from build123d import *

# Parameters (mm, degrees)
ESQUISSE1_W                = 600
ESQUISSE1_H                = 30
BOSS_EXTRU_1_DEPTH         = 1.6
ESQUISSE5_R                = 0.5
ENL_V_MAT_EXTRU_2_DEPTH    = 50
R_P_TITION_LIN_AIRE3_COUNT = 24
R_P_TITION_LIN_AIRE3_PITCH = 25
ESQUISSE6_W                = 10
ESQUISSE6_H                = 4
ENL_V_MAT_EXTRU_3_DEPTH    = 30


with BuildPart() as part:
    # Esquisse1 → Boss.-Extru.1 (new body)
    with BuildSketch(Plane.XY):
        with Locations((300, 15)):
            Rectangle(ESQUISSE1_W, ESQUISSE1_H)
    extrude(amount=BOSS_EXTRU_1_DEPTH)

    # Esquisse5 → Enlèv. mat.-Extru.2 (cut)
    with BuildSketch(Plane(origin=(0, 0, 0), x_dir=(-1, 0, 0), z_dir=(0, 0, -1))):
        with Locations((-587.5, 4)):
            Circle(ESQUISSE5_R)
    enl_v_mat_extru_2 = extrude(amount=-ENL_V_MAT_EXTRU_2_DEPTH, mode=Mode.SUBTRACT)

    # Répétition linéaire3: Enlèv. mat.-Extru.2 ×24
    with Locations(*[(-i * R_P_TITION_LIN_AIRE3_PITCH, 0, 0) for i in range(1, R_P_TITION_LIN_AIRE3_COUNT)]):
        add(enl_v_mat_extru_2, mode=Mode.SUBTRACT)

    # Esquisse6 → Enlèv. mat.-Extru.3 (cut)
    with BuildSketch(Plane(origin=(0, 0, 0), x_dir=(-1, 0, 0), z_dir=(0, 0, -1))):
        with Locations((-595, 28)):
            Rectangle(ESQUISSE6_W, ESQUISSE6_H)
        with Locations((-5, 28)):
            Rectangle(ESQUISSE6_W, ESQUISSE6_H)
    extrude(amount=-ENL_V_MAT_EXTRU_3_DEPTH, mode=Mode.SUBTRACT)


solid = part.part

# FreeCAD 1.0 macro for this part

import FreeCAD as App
import Part
import Sketcher

doc = App.newDocument("Part")
body = doc.addObject("PartDesign::Body", "Body")

# Sketch on XY plane
sketch1 = body.newObject("Sketcher::SketchObject", "Sketch")
sketch1.AttachmentSupport = (doc.getObject("XY_Plane"), [""])
sketch1.MapMode = "FlatFace"
sketch1.addGeometry([
    Part.LineSegment(App.Vector(0, 30, 0), App.Vector(0, 0, 0)),
    Part.LineSegment(App.Vector(0, 0, 0), App.Vector(600, 0, 0)),
    Part.LineSegment(App.Vector(600, 0, 0), App.Vector(600, 30, 0)),
    Part.LineSegment(App.Vector(600, 30, 0), App.Vector(0, 30, 0)),
], False)
sketch1.addConstraint([
    Sketcher.Constraint("Coincident", 0, 2, 1, 1),
    Sketcher.Constraint("Coincident", 1, 2, 2, 1),
    Sketcher.Constraint("Coincident", 2, 2, 3, 1),
    Sketcher.Constraint("Coincident", 3, 2, 0, 1),
    Sketcher.Constraint("Vertical", 0),
    Sketcher.Constraint("Horizontal", 1),
    Sketcher.Constraint("Vertical", 2),
    Sketcher.Constraint("Horizontal", 3),
    Sketcher.Constraint("Coincident", 0, 2, -1, 1),
    Sketcher.Constraint("DistanceX", 1, 1, 1, 2, 600.0),
    Sketcher.Constraint("DistanceY", 0, 2, 0, 1, 30.0),
])
pad1 = body.newObject("PartDesign::Pad", "Pad")
pad1.Profile = sketch1
pad1.Length = 1.6

# Sketch on XY plane
sketch2 = body.newObject("Sketcher::SketchObject", "Sketch001")
sketch2.AttachmentSupport = (doc.getObject("XY_Plane"), [""])
sketch2.MapMode = "FlatFace"
sketch2.addGeometry(Part.Circle(App.Vector(587.5, 4, 0), App.Vector(0, 0, 1), 0.5), False)
sketch2.addConstraint([
    Sketcher.Constraint("Diameter", 0, 1.0),
    Sketcher.Constraint("DistanceY", -1, 1, 0, 3, 4.0),
    Sketcher.Constraint("DistanceX", -1, 1, 0, 3, 587.5),
])
pocket1 = body.newObject("PartDesign::Pocket", "Pocket")
pocket1.Profile = sketch2
pocket1.Length = 50
pocket1.Reversed = True
doc.recompute()

linearpattern = body.newObject("PartDesign::LinearPattern", "LinearPattern")
linearpattern.Originals = [pocket1]
linearpattern.Direction = (doc.getObject("X_Axis"), [""])
linearpattern.Mode = "offset"
linearpattern.Offset = 25
linearpattern.Occurrences = 24
linearpattern.Reversed = True
body.Tip = linearpattern

# Sketch on XY plane
sketch3 = body.newObject("Sketcher::SketchObject", "Sketch002")
sketch3.AttachmentSupport = (doc.getObject("XY_Plane"), [""])
sketch3.MapMode = "FlatFace"
sketch3.addGeometry([
    Part.LineSegment(App.Vector(600, 30, 0), App.Vector(600, 26, 0)),  # 0
    Part.LineSegment(App.Vector(600, 26, 0), App.Vector(590, 26, 0)),  # 1
    Part.LineSegment(App.Vector(590, 26, 0), App.Vector(590, 30, 0)),  # 2
    Part.LineSegment(App.Vector(590, 30, 0), App.Vector(600, 30, 0)),  # 3
    Part.LineSegment(App.Vector(10, 30, 0), App.Vector(10, 26, 0)),  # 4
    Part.LineSegment(App.Vector(10, 26, 0), App.Vector(0, 26, 0)),  # 5
    Part.LineSegment(App.Vector(0, 26, 0), App.Vector(0, 30, 0)),  # 6
    Part.LineSegment(App.Vector(0, 30, 0), App.Vector(10, 30, 0)),  # 7
], False)
sketch3.addConstraint([
    Sketcher.Constraint("Coincident", 0, 2, 1, 1),
    Sketcher.Constraint("Coincident", 1, 2, 2, 1),
    Sketcher.Constraint("Coincident", 2, 2, 3, 1),
    Sketcher.Constraint("Coincident", 3, 2, 0, 1),
    Sketcher.Constraint("Coincident", 4, 2, 5, 1),
    Sketcher.Constraint("Coincident", 5, 2, 6, 1),
    Sketcher.Constraint("Coincident", 6, 2, 7, 1),
    Sketcher.Constraint("Coincident", 7, 2, 4, 1),
    Sketcher.Constraint("Vertical", 0),
    Sketcher.Constraint("Horizontal", 1),
    Sketcher.Constraint("Vertical", 2),
    Sketcher.Constraint("Horizontal", 3),
    Sketcher.Constraint("Vertical", 4),
    Sketcher.Constraint("Horizontal", 5),
    Sketcher.Constraint("Vertical", 6),
    Sketcher.Constraint("Horizontal", 7),
    Sketcher.Constraint("PointOnObject", 5, 2, -2),
    Sketcher.Constraint("Horizontal", 1, 2, 4, 2),
    Sketcher.Constraint("Horizontal", 3, 2, 6, 2),
    Sketcher.Constraint("Equal", 3, 5),
    Sketcher.Constraint("DistanceX", 1, 2, 1, 1, 10.0),
    Sketcher.Constraint("DistanceY", 0, 2, 0, 1, 4.0),
    Sketcher.Constraint("DistanceX", -1, 1, 0, 2, 600.0),
    Sketcher.Constraint("DistanceY", -1, 1, 0, 2, 26.0),
])
pocket2 = body.newObject("PartDesign::Pocket", "Pocket001")
pocket2.Profile = sketch3
pocket2.Length = 30
pocket2.Reversed = True

doc.recompute()
